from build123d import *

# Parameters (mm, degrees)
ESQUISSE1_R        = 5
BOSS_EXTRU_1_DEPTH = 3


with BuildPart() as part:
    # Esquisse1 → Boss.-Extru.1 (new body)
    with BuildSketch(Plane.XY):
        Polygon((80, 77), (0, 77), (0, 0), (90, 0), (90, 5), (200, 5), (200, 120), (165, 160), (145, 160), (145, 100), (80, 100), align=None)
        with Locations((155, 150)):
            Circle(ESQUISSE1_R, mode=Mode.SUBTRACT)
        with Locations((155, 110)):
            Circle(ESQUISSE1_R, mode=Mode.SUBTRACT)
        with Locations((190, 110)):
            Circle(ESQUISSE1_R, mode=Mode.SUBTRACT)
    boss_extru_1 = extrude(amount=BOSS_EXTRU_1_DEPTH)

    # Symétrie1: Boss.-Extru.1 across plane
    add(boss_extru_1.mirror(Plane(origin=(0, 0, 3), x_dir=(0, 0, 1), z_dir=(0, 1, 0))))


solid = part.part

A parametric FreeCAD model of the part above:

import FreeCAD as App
import Part
import Sketcher

V = App.Vector


def add_polygon(sketch, points):
    """Adds a closed chain of lines whose ends are joined by coincident constraints."""
    first, n = sketch.GeometryCount, len(points)
    for a, b in zip(points, points[1:] + points[:1]):
        sketch.addGeometry(Part.LineSegment(App.Vector(*a, 0), App.Vector(*b, 0)), False)
    for i in range(n):
        sketch.addConstraint(Sketcher.Constraint("Coincident", first + i, 2, first + (i + 1) % n, 1))

doc = App.newDocument("Part")
params = doc.addObject("Spreadsheet::Sheet", "Params")
for row, (alias, value) in enumerate([
    ("sketch1_diameter", "10 mm"),
    ("sketch1_width", "80 mm"),
    ("sketch1_width2", "90 mm"),
    ("sketch1_width3", "110 mm"),
    ("sketch1_width4", "20 mm"),
    ("pad1_length", "3 mm"),
], start=1):
    params.set(f"A{row}", alias)
    params.set(f"B{row}", "=" + value)
    params.setAlias(f"B{row}", alias)

body = doc.addObject("PartDesign::Body", "Body")

# Sketch on XY plane
sketch1 = body.newObject("Sketcher::SketchObject", "Sketch")
sketch1.AttachmentSupport = (doc.getObject("XY_Plane"), [""])
sketch1.MapMode = "FlatFace"
add_polygon(sketch1, [(80, 77), (0, 77), (0, 0), (90, 0), (90, 5), (200, 5), (200, 120), (165, 160), (145, 160), (145, 100), (80, 100)])  # lines 0-10
sketch1.addGeometry(Part.Circle(V(155, 110, 0), V(0, 0, 1), 5), False)  # 11
sketch1.addGeometry(Part.Circle(V(190, 110, 0), V(0, 0, 1), 5), False)  # 12
sketch1.addGeometry(Part.Circle(V(155, 150, 0), V(0, 0, 1), 5), False)  # 13
sketch1.addConstraint([
    Sketcher.Constraint("Horizontal", 0),
    Sketcher.Constraint("Vertical", 1),
    Sketcher.Constraint("Horizontal", 2),
    Sketcher.Constraint("Vertical", 3),
    Sketcher.Constraint("Horizontal", 4),
    Sketcher.Constraint("Vertical", 5),
    Sketcher.Constraint("Horizontal", 7),
    Sketcher.Constraint("Vertical", 8),
    Sketcher.Constraint("Horizontal", 9),
    Sketcher.Constraint("Vertical", 10),
    Sketcher.Constraint("Coincident", 1, 2, -1, 1),
    Sketcher.Constraint("Equal", 11, 12),
    Sketcher.Constraint("Equal", 12, 13),
    Sketcher.Constraint("Horizontal", 11, 3, 12, 3),
    Sketcher.Constraint("Vertical", 11, 3, 13, 3),
    Sketcher.Constraint("Diameter", 11, 10.0),
    Sketcher.Constraint("DistanceX", 0, 2, 0, 1, 80.0),
    Sketcher.Constraint("DistanceX", 2, 1, 2, 2, 90.0),
    Sketcher.Constraint("DistanceX", 4, 1, 4, 2, 110.0),
    Sketcher.Constraint("DistanceX", 7, 2, 7, 1, 20.0),
    Sketcher.Constraint("DistanceX", 9, 2, 9, 1, 65.0),
    Sketcher.Constraint("DistanceY", 1, 2, 1, 1, 77.0),
    Sketcher.Constraint("DistanceY", 3, 1, 3, 2, 5.0),
    Sketcher.Constraint("DistanceY", 5, 1, 5, 2, 115.0),
    Sketcher.Constraint("DistanceY", 8, 2, 8, 1, 60.0),
    Sketcher.Constraint("DistanceY", 10, 2, 10, 1, 23.0),
    Sketcher.Constraint("DistanceX", -1, 1, 11, 3, 155.0),
    Sketcher.Constraint("DistanceY", -1, 1, 11, 3, 110.0),
    Sketcher.Constraint("DistanceX", -1, 1, 12, 3, 190.0),
    Sketcher.Constraint("DistanceY", -1, 1, 13, 3, 150.0),
])
sketch1.setExpression("Constraints[26]", "Params.sketch1_diameter")
sketch1.setExpression("Constraints[27]", "Params.sketch1_width")
sketch1.setExpression("Constraints[28]", "Params.sketch1_width2")
sketch1.setExpression("Constraints[29]", "Params.sketch1_width3")
sketch1.setExpression("Constraints[30]", "Params.sketch1_width4")
pad1 = body.newObject("PartDesign::Pad", "Pad")
pad1.Profile = sketch1
pad1.setExpression("Length", "Params.pad1_length")
doc.recompute()

mirrored = body.newObject("PartDesign::Mirrored", "Mirrored")
mirrored.Originals = [pad1]
mirrored.MirrorPlane = (doc.getObject("XZ_Plane"), [""])
body.Tip = mirrored

doc.recompute()
